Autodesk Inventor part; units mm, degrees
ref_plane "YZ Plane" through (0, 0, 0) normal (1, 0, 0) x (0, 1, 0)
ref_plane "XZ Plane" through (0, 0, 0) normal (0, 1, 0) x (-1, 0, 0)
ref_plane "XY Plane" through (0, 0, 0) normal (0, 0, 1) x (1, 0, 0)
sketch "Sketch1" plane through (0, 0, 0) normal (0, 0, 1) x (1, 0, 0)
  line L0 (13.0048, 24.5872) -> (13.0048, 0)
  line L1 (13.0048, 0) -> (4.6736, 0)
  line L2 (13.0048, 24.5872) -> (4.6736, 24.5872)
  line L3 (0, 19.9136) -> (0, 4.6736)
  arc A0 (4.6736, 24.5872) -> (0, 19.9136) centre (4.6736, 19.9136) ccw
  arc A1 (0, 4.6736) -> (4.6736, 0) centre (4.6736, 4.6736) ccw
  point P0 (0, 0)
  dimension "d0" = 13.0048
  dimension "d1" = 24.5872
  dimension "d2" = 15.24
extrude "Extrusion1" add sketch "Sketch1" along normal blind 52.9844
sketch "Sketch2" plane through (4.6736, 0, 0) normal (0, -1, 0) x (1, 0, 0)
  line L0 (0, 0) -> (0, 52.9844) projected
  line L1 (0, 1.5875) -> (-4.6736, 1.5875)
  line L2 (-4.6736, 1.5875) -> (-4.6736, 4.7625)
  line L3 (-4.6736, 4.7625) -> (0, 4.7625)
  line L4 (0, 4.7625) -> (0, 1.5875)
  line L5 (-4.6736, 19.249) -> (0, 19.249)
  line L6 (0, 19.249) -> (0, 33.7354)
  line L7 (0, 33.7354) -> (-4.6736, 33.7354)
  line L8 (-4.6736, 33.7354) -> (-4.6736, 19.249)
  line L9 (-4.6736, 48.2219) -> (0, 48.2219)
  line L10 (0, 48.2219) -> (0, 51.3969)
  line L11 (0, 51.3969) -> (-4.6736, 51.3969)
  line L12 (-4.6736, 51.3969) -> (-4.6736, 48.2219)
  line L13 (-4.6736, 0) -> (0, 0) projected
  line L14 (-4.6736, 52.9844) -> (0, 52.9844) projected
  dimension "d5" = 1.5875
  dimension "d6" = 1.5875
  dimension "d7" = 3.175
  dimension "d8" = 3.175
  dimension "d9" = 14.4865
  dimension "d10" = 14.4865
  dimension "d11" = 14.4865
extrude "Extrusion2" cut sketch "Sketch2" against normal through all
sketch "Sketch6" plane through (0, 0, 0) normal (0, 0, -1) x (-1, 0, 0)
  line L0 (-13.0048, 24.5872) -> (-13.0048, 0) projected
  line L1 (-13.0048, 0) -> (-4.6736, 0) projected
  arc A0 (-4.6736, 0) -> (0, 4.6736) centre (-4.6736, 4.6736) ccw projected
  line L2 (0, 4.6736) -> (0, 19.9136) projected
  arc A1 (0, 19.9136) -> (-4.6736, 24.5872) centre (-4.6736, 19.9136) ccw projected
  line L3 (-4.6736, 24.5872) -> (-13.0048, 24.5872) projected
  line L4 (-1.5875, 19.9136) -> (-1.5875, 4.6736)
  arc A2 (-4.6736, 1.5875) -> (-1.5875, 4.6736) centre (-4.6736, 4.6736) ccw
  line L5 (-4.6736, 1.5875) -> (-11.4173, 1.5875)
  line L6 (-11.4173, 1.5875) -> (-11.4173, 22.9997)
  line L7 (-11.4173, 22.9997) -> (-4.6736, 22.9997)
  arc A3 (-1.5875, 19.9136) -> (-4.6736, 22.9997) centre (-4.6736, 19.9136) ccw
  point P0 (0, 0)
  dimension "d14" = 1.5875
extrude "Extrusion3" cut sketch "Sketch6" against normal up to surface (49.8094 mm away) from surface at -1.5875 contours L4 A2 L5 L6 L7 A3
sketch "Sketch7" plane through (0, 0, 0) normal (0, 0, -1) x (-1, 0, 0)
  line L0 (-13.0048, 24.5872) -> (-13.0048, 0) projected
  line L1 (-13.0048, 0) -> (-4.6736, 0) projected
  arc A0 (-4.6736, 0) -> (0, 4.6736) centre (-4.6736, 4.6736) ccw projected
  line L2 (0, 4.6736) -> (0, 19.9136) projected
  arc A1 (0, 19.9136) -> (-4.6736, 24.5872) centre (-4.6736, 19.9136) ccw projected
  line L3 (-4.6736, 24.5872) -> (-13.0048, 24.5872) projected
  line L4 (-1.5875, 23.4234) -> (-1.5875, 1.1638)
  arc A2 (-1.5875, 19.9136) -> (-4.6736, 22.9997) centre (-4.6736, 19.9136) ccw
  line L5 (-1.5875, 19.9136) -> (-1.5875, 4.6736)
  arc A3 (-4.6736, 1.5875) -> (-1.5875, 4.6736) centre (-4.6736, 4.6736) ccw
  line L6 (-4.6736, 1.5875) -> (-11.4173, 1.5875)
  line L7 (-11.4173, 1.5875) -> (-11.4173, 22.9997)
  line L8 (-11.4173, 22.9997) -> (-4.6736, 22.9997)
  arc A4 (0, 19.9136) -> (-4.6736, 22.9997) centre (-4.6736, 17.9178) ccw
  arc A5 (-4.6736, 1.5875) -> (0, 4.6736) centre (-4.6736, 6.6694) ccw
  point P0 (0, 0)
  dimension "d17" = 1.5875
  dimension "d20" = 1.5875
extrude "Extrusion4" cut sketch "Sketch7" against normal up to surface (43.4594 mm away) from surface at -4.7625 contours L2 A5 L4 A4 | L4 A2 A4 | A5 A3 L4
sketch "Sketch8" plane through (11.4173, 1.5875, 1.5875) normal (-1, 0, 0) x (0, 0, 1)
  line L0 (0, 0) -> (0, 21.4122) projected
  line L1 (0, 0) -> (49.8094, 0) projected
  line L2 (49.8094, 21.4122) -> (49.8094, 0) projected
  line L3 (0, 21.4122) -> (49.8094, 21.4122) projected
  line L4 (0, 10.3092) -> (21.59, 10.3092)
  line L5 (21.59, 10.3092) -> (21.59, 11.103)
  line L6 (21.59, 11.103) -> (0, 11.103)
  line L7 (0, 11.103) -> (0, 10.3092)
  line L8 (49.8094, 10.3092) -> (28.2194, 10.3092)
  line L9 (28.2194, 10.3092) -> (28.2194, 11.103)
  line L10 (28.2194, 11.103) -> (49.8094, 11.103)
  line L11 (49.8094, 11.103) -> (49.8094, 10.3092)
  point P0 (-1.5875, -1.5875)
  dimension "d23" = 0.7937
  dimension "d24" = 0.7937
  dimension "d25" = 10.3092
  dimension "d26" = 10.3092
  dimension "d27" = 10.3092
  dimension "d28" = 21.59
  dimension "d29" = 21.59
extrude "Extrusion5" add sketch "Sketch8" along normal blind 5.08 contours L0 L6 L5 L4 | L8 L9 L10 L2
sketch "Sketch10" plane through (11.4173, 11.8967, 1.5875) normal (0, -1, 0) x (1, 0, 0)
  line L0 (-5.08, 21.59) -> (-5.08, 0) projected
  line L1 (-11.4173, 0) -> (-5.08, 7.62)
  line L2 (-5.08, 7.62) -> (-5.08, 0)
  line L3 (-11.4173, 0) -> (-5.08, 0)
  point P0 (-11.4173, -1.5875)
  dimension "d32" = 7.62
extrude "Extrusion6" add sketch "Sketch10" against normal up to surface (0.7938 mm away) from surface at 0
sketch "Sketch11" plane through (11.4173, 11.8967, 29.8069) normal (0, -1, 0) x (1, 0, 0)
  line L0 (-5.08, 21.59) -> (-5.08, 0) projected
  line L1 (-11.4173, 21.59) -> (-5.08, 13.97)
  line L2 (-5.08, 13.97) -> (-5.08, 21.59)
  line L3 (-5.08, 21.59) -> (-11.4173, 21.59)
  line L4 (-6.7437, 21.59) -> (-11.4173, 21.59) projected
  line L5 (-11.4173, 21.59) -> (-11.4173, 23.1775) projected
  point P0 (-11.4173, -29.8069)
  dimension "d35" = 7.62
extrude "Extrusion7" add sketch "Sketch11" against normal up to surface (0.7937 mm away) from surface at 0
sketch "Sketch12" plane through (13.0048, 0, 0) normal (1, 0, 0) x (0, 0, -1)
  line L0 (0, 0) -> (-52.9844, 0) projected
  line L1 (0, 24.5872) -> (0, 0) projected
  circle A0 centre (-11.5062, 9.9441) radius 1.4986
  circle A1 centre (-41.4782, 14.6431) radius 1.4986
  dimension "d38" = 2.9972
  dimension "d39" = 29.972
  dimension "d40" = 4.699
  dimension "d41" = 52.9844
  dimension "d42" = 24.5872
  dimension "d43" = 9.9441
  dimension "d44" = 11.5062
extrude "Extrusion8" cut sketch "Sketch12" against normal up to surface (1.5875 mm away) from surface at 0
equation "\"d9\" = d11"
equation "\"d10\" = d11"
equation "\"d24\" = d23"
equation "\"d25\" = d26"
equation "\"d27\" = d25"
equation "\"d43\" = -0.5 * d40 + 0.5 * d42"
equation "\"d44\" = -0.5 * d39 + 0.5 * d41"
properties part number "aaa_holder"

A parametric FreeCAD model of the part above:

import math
import FreeCAD as App
import Part
import Sketcher
Q = App.Units.Quantity

doc = App.newDocument("Part")
body = doc.addObject("PartDesign::Body", "Body")

sketch1 = doc.addObject("Sketcher::SketchObject", "Sketch")
body.addObject(sketch1)
sketch1.AttachmentSupport = (doc.XY_Plane, [""])
sketch1.MapMode = "FlatFace"
sketch1.addGeometry(Part.LineSegment(App.Vector(13, 0, 0), App.Vector(13, 24.6, 0)), False)
sketch1.addGeometry(Part.LineSegment(App.Vector(13, 24.6, 0), App.Vector(4.7, 24.6, 0)), False)
sketch1.addGeometry(Part.ArcOfCircle(Part.Circle(App.Vector(4.7, 19.9, 0), App.Vector(0, 0, 1), 4.7), math.radians(90), math.radians(180)), False)
sketch1.addGeometry(Part.LineSegment(App.Vector(0, 19.9, 0), App.Vector(0, 4.7, 0)), False)
sketch1.addGeometry(Part.ArcOfCircle(Part.Circle(App.Vector(4.7, 4.7, 0), App.Vector(0, 0, 1), 4.7), math.radians(180), math.radians(270)), False)
sketch1.addGeometry(Part.LineSegment(App.Vector(4.7, 0, 0), App.Vector(13, 0, 0)), False)
sketch1.addConstraint(Sketcher.Constraint("Coincident", 0, 2, 1, 1))
sketch1.addConstraint(Sketcher.Constraint("Tangent", 1, 2, 2, 1))
sketch1.addConstraint(Sketcher.Constraint("Tangent", 2, 2, 3, 1))
sketch1.addConstraint(Sketcher.Constraint("Tangent", 3, 2, 4, 1))
sketch1.addConstraint(Sketcher.Constraint("Tangent", 4, 2, 5, 1))
sketch1.addConstraint(Sketcher.Constraint("Coincident", 5, 2, 0, 1))
sketch1.addConstraint(Sketcher.Constraint("Vertical", 0))
sketch1.addConstraint(Sketcher.Constraint("Horizontal", 1))
sketch1.addConstraint(Sketcher.Constraint("Vertical", 3))
sketch1.addConstraint(Sketcher.Constraint("Horizontal", 5))
sketch1.addConstraint(Sketcher.Constraint("Equal", 2, 4))
sketch1.addConstraint(Sketcher.Constraint("PointOnObject", 2, 2, -2))
sketch1.addConstraint(Sketcher.Constraint("PointOnObject", 4, 2, -1))
sketch1.addConstraint(Sketcher.Constraint("DistanceY", 3, 2, 3, 1, Q("0.6 in")))
sketch1.addConstraint(Sketcher.Constraint("DistanceY", 0, 1, 0, 2, Q("0.968 in")))
sketch1.addConstraint(Sketcher.Constraint("DistanceX", -1, 1, 0, 2, Q("0.512 in")))
pad1 = doc.addObject("PartDesign::Pad", "Pad")
body.addObject(pad1)
pad1.Profile = sketch1
pad1.Length = Q("2.086 in")

sketch2 = doc.addObject("Sketcher::SketchObject", "Sketch001")
body.addObject(sketch2)
sketch2.AttachmentSupport = (doc.XZ_Plane, [""])
sketch2.MapMode = "FlatFace"
sketch2.addGeometry(Part.LineSegment(App.Vector(0, 1.6, 0), App.Vector(4.7, 1.6, 0)), False)
sketch2.addGeometry(Part.LineSegment(App.Vector(4.7, 1.6, 0), App.Vector(4.7, 4.8, 0)), False)
sketch2.addGeometry(Part.LineSegment(App.Vector(4.7, 4.8, 0), App.Vector(0, 4.8, 0)), False)
sketch2.addGeometry(Part.LineSegment(App.Vector(0, 4.8, 0), App.Vector(0, 1.6, 0)), False)
sketch2.addGeometry(Part.LineSegment(App.Vector(0, 48.2, 0), App.Vector(4.7, 48.2, 0)), False)
sketch2.addGeometry(Part.LineSegment(App.Vector(4.7, 48.2, 0), App.Vector(4.7, 51.4, 0)), False)
sketch2.addGeometry(Part.LineSegment(App.Vector(4.7, 51.4, 0), App.Vector(0, 51.4, 0)), False)
sketch2.addGeometry(Part.LineSegment(App.Vector(0, 51.4, 0), App.Vector(0, 48.2, 0)), False)
sketch2.addGeometry(Part.LineSegment(App.Vector(0, 19.2, 0), App.Vector(4.7, 19.2, 0)), False)
sketch2.addGeometry(Part.LineSegment(App.Vector(4.7, 19.2, 0), App.Vector(4.7, 33.7, 0)), False)
sketch2.addGeometry(Part.LineSegment(App.Vector(4.7, 33.7, 0), App.Vector(0, 33.7, 0)), False)
sketch2.addGeometry(Part.LineSegment(App.Vector(0, 33.7, 0), App.Vector(0, 19.2, 0)), False)
sketch2.addConstraint(Sketcher.Constraint("Coincident", 0, 2, 1, 1))
sketch2.addConstraint(Sketcher.Constraint("Coincident", 1, 2, 2, 1))
sketch2.addConstraint(Sketcher.Constraint("Coincident", 2, 2, 3, 1))
sketch2.addConstraint(Sketcher.Constraint("Coincident", 3, 2, 0, 1))
sketch2.addConstraint(Sketcher.Constraint("Coincident", 4, 2, 5, 1))
sketch2.addConstraint(Sketcher.Constraint("Coincident", 5, 2, 6, 1))
sketch2.addConstraint(Sketcher.Constraint("Coincident", 6, 2, 7, 1))
sketch2.addConstraint(Sketcher.Constraint("Coincident", 7, 2, 4, 1))
sketch2.addConstraint(Sketcher.Constraint("Coincident", 8, 2, 9, 1))
sketch2.addConstraint(Sketcher.Constraint("Coincident", 9, 2, 10, 1))
sketch2.addConstraint(Sketcher.Constraint("Coincident", 10, 2, 11, 1))
sketch2.addConstraint(Sketcher.Constraint("Coincident", 11, 2, 8, 1))
sketch2.addConstraint(Sketcher.Constraint("Horizontal", 0))
sketch2.addConstraint(Sketcher.Constraint("Vertical", 1))
sketch2.addConstraint(Sketcher.Constraint("Horizontal", 2))
sketch2.addConstraint(Sketcher.Constraint("Vertical", 3))
sketch2.addConstraint(Sketcher.Constraint("Horizontal", 4))
sketch2.addConstraint(Sketcher.Constraint("Vertical", 5))
sketch2.addConstraint(Sketcher.Constraint("Horizontal", 6))
sketch2.addConstraint(Sketcher.Constraint("Vertical", 7))
sketch2.addConstraint(Sketcher.Constraint("Horizontal", 8))
sketch2.addConstraint(Sketcher.Constraint("Vertical", 9))
sketch2.addConstraint(Sketcher.Constraint("Horizontal", 10))
sketch2.addConstraint(Sketcher.Constraint("Vertical", 11))
sketch2.addConstraint(Sketcher.Constraint("PointOnObject", 2, 2, -2))
sketch2.addConstraint(Sketcher.Constraint("PointOnObject", 6, 2, -2))
sketch2.addConstraint(Sketcher.Constraint("PointOnObject", 10, 2, -2))
sketch2.addConstraint(Sketcher.Constraint("Vertical", 1, 2, 4, 2))
sketch2.addConstraint(Sketcher.Constraint("Vertical", 5, 2, 8, 2))
sketch2.addConstraint(Sketcher.Constraint("Equal", 3, 5))
sketch2.addConstraint(Sketcher.Constraint("DistanceY", 1, 1, 1, 2, Q("0.125 in")))
sketch2.addConstraint(Sketcher.Constraint("DistanceY", -1, 1, 0, 2, Q("0.0625 in")))
sketch2.addConstraint(Sketcher.Constraint("DistanceY", 9, 1, 9, 2, Q("14.4864 mm")))
sketch2.addConstraint(Sketcher.Constraint("DistanceX", 0, 1, 0, 2, Q("0.184 in")))
sketch2.addConstraint(Sketcher.Constraint("DistanceY", 1, 2, 8, 2, Q("14.4865 mm")))
sketch2.addConstraint(Sketcher.Constraint("DistanceY", 9, 2, 4, 2, Q("14.4865 mm")))
pocket1 = doc.addObject("PartDesign::Pocket", "Pocket")
body.addObject(pocket1)
pocket1.Profile = sketch2
pocket1.Type = "ThroughAll"

sketch3 = doc.addObject("Sketcher::SketchObject", "Sketch002")
body.addObject(sketch3)
sketch3.AttachmentSupport = (doc.XY_Plane, [""])
sketch3.MapMode = "FlatFace"
sketch3.AttachmentOffset = App.Placement(App.Vector(0, 0, 0.0625 * 25.4), App.Rotation())
sketch3.addGeometry(Part.LineSegment(App.Vector(1.6, 4.7, 0), App.Vector(1.6, 19.9, 0)), False)
sketch3.addGeometry(Part.ArcOfCircle(Part.Circle(App.Vector(4.7, 19.9, 0), App.Vector(0, 0, 1), 3.1), math.radians(90), math.radians(180)), False)
sketch3.addGeometry(Part.LineSegment(App.Vector(4.7, 23, 0), App.Vector(11.4, 23, 0)), False)
sketch3.addGeometry(Part.LineSegment(App.Vector(11.4, 23, 0), App.Vector(11.4, 1.6, 0)), False)
sketch3.addGeometry(Part.LineSegment(App.Vector(11.4, 1.6, 0), App.Vector(4.7, 1.6, 0)), False)
sketch3.addGeometry(Part.ArcOfCircle(Part.Circle(App.Vector(4.7, 4.7, 0), App.Vector(0, 0, 1), 3.1), math.radians(180), math.radians(270)), False)
sketch3.addConstraint(Sketcher.Constraint("Tangent", 0, 2, 1, 2))
sketch3.addConstraint(Sketcher.Constraint("Tangent", 1, 1, 2, 1))
sketch3.addConstraint(Sketcher.Constraint("Coincident", 2, 2, 3, 1))
sketch3.addConstraint(Sketcher.Constraint("Coincident", 3, 2, 4, 1))
sketch3.addConstraint(Sketcher.Constraint("Tangent", 4, 2, 5, 2))
sketch3.addConstraint(Sketcher.Constraint("Tangent", 5, 1, 0, 1))
sketch3.addConstraint(Sketcher.Constraint("Vertical", 0))
sketch3.addConstraint(Sketcher.Constraint("Horizontal", 2))
sketch3.addConstraint(Sketcher.Constraint("Vertical", 3))
sketch3.addConstraint(Sketcher.Constraint("Horizontal", 4))
sketch3.addConstraint(Sketcher.Constraint("Equal", 1, 5))
sketch3.addConstraint(Sketcher.Constraint("DistanceY", 0, 1, 0, 2, Q("0.6 in")))
sketch3.addConstraint(Sketcher.Constraint("DistanceX", -1, 1, 0, 2, Q("0.0625 in")))
sketch3.addConstraint(Sketcher.Constraint("DistanceY", -1, 1, 3, 2, Q("0.0625 in")))
sketch3.addConstraint(Sketcher.Constraint("Radius", 1, Q("0.1215 in")))
sketch3.addConstraint(Sketcher.Constraint("DistanceX", 2, 1, 2, 2, Q("0.2655 in")))
pocket2 = doc.addObject("PartDesign::Pocket", "Pocket001")
body.addObject(pocket2)
pocket2.Profile = sketch3
pocket2.Length = Q("1.961 in")
pocket2.Reversed = True

sketch4 = doc.addObject("Sketcher::SketchObject", "Sketch003")
body.addObject(sketch4)
sketch4.AttachmentSupport = (doc.XY_Plane, [""])
sketch4.MapMode = "FlatFace"
sketch4.AttachmentOffset = App.Placement(App.Vector(0, 0, 0.1875 * 25.4), App.Rotation())
sketch4.addGeometry(Part.LineSegment(App.Vector(0, 4.7, 0), App.Vector(0, 19.9, 0)), False)
sketch4.addGeometry(Part.ArcOfCircle(Part.Circle(App.Vector(4.7, 17.9, 0), App.Vector(0, 0, 1), 5.1), math.radians(90), math.radians(157)), False)
sketch4.addGeometry(Part.ArcOfCircle(Part.Circle(App.Vector(4.7, 19.9, 0), App.Vector(0, 0, 1), 3.1), math.radians(90), math.radians(180)), False)
sketch4.addGeometry(Part.LineSegment(App.Vector(1.6, 19.9, 0), App.Vector(1.6, 4.7, 0)), False)
sketch4.addGeometry(Part.ArcOfCircle(Part.Circle(App.Vector(4.7, 4.7, 0), App.Vector(0, 0, 1), 3.1), math.radians(180), math.radians(270)), False)
sketch4.addGeometry(Part.ArcOfCircle(Part.Circle(App.Vector(4.7, 6.7, 0), App.Vector(0, 0, 1), 5.1), math.radians(-157), math.radians(-90)), False)
sketch4.addConstraint(Sketcher.Constraint("Coincident", 0, 2, 1, 2))
sketch4.addConstraint(Sketcher.Constraint("Tangent", 1, 1, 2, 1))
sketch4.addConstraint(Sketcher.Constraint("Tangent", 2, 2, 3, 1))
sketch4.addConstraint(Sketcher.Constraint("Tangent", 3, 2, 4, 1))
sketch4.addConstraint(Sketcher.Constraint("Tangent", 4, 2, 5, 2))
sketch4.addConstraint(Sketcher.Constraint("Coincident", 5, 1, 0, 1))
sketch4.addConstraint(Sketcher.Constraint("Vertical", 0))
sketch4.addConstraint(Sketcher.Constraint("Vertical", 3))
sketch4.addConstraint(Sketcher.Constraint("Equal", 2, 4))
sketch4.addConstraint(Sketcher.Constraint("Equal", 1, 5))
sketch4.addConstraint(Sketcher.Constraint("PointOnObject", 0, 2, -2))
sketch4.addConstraint(Sketcher.Constraint("Horizontal", 2, 3, 0, 2))
sketch4.addConstraint(Sketcher.Constraint("Horizontal", 3, 2, 5, 1))
sketch4.addConstraint(Sketcher.Constraint("Vertical", 1, 3, 2, 3))
sketch4.addConstraint(Sketcher.Constraint("DistanceY", 0, 1, 0, 2, Q("0.6 in")))
sketch4.addConstraint(Sketcher.Constraint("DistanceX", -1, 1, 2, 2, Q("0.0625 in")))
sketch4.addConstraint(Sketcher.Constraint("DistanceY", -1, 1, 4, 2, Q("0.0625 in")))
sketch4.addConstraint(Sketcher.Constraint("Radius", 2, Q("0.1215 in")))
pocket3 = doc.addObject("PartDesign::Pocket", "Pocket002")
body.addObject(pocket3)
pocket3.Profile = sketch4
pocket3.Length = Q("1.711 in")
pocket3.Reversed = True

sketch5 = doc.addObject("Sketcher::SketchObject", "Sketch004")
body.addObject(sketch5)
sketch5.AttachmentSupport = (doc.YZ_Plane, [""])
sketch5.MapMode = "FlatFace"
sketch5.AttachmentOffset = App.Placement(App.Vector(0, 0, 0.4495 * 25.4), App.Rotation())
sketch5.addGeometry(Part.LineSegment(App.Vector(12.7, 1.6, 0), App.Vector(11.9, 1.6, 0)), False)
sketch5.addGeometry(Part.LineSegment(App.Vector(11.9, 1.6, 0), App.Vector(11.9, 23.2, 0)), False)
sketch5.addGeometry(Part.LineSegment(App.Vector(11.9, 23.2, 0), App.Vector(12.7, 23.2, 0)), False)
sketch5.addGeometry(Part.LineSegment(App.Vector(12.7, 23.2, 0), App.Vector(12.7, 1.6, 0)), False)
sketch5.addGeometry(Part.LineSegment(App.Vector(11.9, 29.8, 0), App.Vector(11.9, 51.4, 0)), False)
sketch5.addGeometry(Part.LineSegment(App.Vector(11.9, 51.4, 0), App.Vector(12.7, 51.4, 0)), False)
sketch5.addGeometry(Part.LineSegment(App.Vector(12.7, 51.4, 0), App.Vector(12.7, 29.8, 0)), False)
sketch5.addGeometry(Part.LineSegment(App.Vector(12.7, 29.8, 0), App.Vector(11.9, 29.8, 0)), False)
sketch5.addConstraint(Sketcher.Constraint("Coincident", 0, 2, 1, 1))
sketch5.addConstraint(Sketcher.Constraint("Coincident", 1, 2, 2, 1))
sketch5.addConstraint(Sketcher.Constraint("Coincident", 2, 2, 3, 1))
sketch5.addConstraint(Sketcher.Constraint("Coincident", 3, 2, 0, 1))
sketch5.addConstraint(Sketcher.Constraint("Coincident", 4, 2, 5, 1))
sketch5.addConstraint(Sketcher.Constraint("Coincident", 5, 2, 6, 1))
sketch5.addConstraint(Sketcher.Constraint("Coincident", 6, 2, 7, 1))
sketch5.addConstraint(Sketcher.Constraint("Coincident", 7, 2, 4, 1))
sketch5.addConstraint(Sketcher.Constraint("Horizontal", 0))
sketch5.addConstraint(Sketcher.Constraint("Vertical", 1))
sketch5.addConstraint(Sketcher.Constraint("Horizontal", 2))
sketch5.addConstraint(Sketcher.Constraint("Vertical", 3))
sketch5.addConstraint(Sketcher.Constraint("Vertical", 4))
sketch5.addConstraint(Sketcher.Constraint("Horizontal", 5))
sketch5.addConstraint(Sketcher.Constraint("Vertical", 6))
sketch5.addConstraint(Sketcher.Constraint("Horizontal", 7))
sketch5.addConstraint(Sketcher.Constraint("Vertical", 1, 2, 4, 2))
sketch5.addConstraint(Sketcher.Constraint("Vertical", 3, 2, 5, 2))
sketch5.addConstraint(Sketcher.Constraint("Equal", 3, 4))
sketch5.addConstraint(Sketcher.Constraint("DistanceY", 1, 1, 1, 2, Q("0.85 in")))
sketch5.addConstraint(Sketcher.Constraint("DistanceX", 0, 2, 0, 1, Q("0.031252 in")))
sketch5.addConstraint(Sketcher.Constraint("DistanceY", -1, 1, 0, 2, Q("0.0625 in")))
sketch5.addConstraint(Sketcher.Constraint("DistanceY", 1, 2, 4, 2, Q("1.111 in")))
sketch5.addConstraint(Sketcher.Constraint("DistanceX", -1, 1, 0, 2, Q("11.8967 mm")))
pad2 = doc.addObject("PartDesign::Pad", "Pad001")
body.addObject(pad2)
pad2.Profile = sketch5
pad2.Length = Q("0.2 in")
pad2.Reversed = True

sketch6 = doc.addObject("Sketcher::SketchObject", "Sketch005")
body.addObject(sketch6)
sketch6.AttachmentSupport = (doc.XZ_Plane, [""])
sketch6.MapMode = "FlatFace"
sketch6.AttachmentOffset = App.Placement(App.Vector(0, 0, -11.8967), App.Rotation())
sketch6.addGeometry(Part.LineSegment(App.Vector(6, 2, 0), App.Vector(6, 9, 0)), False)
sketch6.addGeometry(Part.LineSegment(App.Vector(6, 9, 0), App.Vector(0, 2, 0)), False)
sketch6.addGeometry(Part.LineSegment(App.Vector(0, 2, 0), App.Vector(6, 2, 0)), False)
sketch6.addConstraint(Sketcher.Constraint("Coincident", 0, 2, 1, 1))
sketch6.addConstraint(Sketcher.Constraint("Coincident", 1, 2, 2, 1))
sketch6.addConstraint(Sketcher.Constraint("Coincident", 2, 2, 0, 1))
sketch6.addConstraint(Sketcher.Constraint("Vertical", 0))
sketch6.addConstraint(Sketcher.Constraint("Horizontal", 2))
sketch6.addConstraint(Sketcher.Constraint("PointOnObject", 1, 2, -2))
sketch6.addConstraint(Sketcher.Constraint("DistanceY", 0, 1, 0, 2, Q("0.3 in")))
sketch6.addConstraint(Sketcher.Constraint("Angle", 1, Q("-129.7492 deg")))
sketch6.addConstraint(Sketcher.Constraint("DistanceY", -1, 1, 1, 2, Q("0.0625 in")))
pad3 = doc.addObject("PartDesign::Pad", "Pad002")
body.addObject(pad3)
pad3.Profile = sketch6
pad3.Length = Q("0.031252 in")
pad3.Reversed = True

sketch7 = doc.addObject("Sketcher::SketchObject", "Sketch006")
body.addObject(sketch7)
sketch7.AttachmentSupport = (doc.XZ_Plane, [""])
sketch7.MapMode = "FlatFace"
sketch7.AttachmentOffset = App.Placement(App.Vector(0, 0, -11.8967), App.Rotation())
sketch7.addGeometry(Part.LineSegment(App.Vector(6, 44, 0), App.Vector(6, 51, 0)), False)
sketch7.addGeometry(Part.LineSegment(App.Vector(6, 51, 0), App.Vector(0, 51, 0)), False)
sketch7.addGeometry(Part.LineSegment(App.Vector(0, 51, 0), App.Vector(6, 44, 0)), False)
sketch7.addConstraint(Sketcher.Constraint("Coincident", 0, 2, 1, 1))
sketch7.addConstraint(Sketcher.Constraint("Coincident", 1, 2, 2, 1))
sketch7.addConstraint(Sketcher.Constraint("Coincident", 2, 2, 0, 1))
sketch7.addConstraint(Sketcher.Constraint("Vertical", 0))
sketch7.addConstraint(Sketcher.Constraint("Horizontal", 1))
sketch7.addConstraint(Sketcher.Constraint("PointOnObject", 1, 2, -2))
sketch7.addConstraint(Sketcher.Constraint("DistanceY", 0, 1, 0, 2, Q("0.3 in")))
sketch7.addConstraint(Sketcher.Constraint("Angle", 2, Q("-50.2508 deg")))
sketch7.addConstraint(Sketcher.Constraint("DistanceY", -1, 1, 0, 2, Q("2.0235 in")))
pad4 = doc.addObject("PartDesign::Pad", "Pad003")
body.addObject(pad4)
pad4.Profile = sketch7
pad4.Length = Q("0.031248 in")
pad4.Reversed = True

sketch8 = doc.addObject("Sketcher::SketchObject", "Sketch007")
body.addObject(sketch8)
sketch8.AttachmentSupport = (doc.YZ_Plane, [""])
sketch8.MapMode = "FlatFace"
sketch8.AttachmentOffset = App.Placement(App.Vector(0, 0, 0.512 * 25.4), App.Rotation())
sketch8.addGeometry(Part.Circle(App.Vector(9.9, 11.5, 0), App.Vector(0, 0, 1), 1.5), False)
sketch8.addGeometry(Part.Circle(App.Vector(14.6, 41.5, 0), App.Vector(0, 0, 1), 1.5), False)
sketch8.addConstraint(Sketcher.Constraint("Equal", 0, 1))
sketch8.addConstraint(Sketcher.Constraint("Diameter", 0, Q("0.118 in")))
sketch8.addConstraint(Sketcher.Constraint("DistanceY", 0, 3, 1, 3, Q("1.18 in")))
sketch8.addConstraint(Sketcher.Constraint("DistanceY", -1, 1, 0, 3, Q("0.453 in")))
sketch8.addConstraint(Sketcher.Constraint("DistanceX", 0, 3, 1, 3, Q("0.185 in")))
sketch8.addConstraint(Sketcher.Constraint("DistanceX", -1, 1, 0, 3, Q("0.3915 in")))
pocket4 = doc.addObject("PartDesign::Pocket", "Pocket003")
body.addObject(pocket4)
pocket4.Profile = sketch8
pocket4.Length = Q("0.0625 in")

doc.recompute()
